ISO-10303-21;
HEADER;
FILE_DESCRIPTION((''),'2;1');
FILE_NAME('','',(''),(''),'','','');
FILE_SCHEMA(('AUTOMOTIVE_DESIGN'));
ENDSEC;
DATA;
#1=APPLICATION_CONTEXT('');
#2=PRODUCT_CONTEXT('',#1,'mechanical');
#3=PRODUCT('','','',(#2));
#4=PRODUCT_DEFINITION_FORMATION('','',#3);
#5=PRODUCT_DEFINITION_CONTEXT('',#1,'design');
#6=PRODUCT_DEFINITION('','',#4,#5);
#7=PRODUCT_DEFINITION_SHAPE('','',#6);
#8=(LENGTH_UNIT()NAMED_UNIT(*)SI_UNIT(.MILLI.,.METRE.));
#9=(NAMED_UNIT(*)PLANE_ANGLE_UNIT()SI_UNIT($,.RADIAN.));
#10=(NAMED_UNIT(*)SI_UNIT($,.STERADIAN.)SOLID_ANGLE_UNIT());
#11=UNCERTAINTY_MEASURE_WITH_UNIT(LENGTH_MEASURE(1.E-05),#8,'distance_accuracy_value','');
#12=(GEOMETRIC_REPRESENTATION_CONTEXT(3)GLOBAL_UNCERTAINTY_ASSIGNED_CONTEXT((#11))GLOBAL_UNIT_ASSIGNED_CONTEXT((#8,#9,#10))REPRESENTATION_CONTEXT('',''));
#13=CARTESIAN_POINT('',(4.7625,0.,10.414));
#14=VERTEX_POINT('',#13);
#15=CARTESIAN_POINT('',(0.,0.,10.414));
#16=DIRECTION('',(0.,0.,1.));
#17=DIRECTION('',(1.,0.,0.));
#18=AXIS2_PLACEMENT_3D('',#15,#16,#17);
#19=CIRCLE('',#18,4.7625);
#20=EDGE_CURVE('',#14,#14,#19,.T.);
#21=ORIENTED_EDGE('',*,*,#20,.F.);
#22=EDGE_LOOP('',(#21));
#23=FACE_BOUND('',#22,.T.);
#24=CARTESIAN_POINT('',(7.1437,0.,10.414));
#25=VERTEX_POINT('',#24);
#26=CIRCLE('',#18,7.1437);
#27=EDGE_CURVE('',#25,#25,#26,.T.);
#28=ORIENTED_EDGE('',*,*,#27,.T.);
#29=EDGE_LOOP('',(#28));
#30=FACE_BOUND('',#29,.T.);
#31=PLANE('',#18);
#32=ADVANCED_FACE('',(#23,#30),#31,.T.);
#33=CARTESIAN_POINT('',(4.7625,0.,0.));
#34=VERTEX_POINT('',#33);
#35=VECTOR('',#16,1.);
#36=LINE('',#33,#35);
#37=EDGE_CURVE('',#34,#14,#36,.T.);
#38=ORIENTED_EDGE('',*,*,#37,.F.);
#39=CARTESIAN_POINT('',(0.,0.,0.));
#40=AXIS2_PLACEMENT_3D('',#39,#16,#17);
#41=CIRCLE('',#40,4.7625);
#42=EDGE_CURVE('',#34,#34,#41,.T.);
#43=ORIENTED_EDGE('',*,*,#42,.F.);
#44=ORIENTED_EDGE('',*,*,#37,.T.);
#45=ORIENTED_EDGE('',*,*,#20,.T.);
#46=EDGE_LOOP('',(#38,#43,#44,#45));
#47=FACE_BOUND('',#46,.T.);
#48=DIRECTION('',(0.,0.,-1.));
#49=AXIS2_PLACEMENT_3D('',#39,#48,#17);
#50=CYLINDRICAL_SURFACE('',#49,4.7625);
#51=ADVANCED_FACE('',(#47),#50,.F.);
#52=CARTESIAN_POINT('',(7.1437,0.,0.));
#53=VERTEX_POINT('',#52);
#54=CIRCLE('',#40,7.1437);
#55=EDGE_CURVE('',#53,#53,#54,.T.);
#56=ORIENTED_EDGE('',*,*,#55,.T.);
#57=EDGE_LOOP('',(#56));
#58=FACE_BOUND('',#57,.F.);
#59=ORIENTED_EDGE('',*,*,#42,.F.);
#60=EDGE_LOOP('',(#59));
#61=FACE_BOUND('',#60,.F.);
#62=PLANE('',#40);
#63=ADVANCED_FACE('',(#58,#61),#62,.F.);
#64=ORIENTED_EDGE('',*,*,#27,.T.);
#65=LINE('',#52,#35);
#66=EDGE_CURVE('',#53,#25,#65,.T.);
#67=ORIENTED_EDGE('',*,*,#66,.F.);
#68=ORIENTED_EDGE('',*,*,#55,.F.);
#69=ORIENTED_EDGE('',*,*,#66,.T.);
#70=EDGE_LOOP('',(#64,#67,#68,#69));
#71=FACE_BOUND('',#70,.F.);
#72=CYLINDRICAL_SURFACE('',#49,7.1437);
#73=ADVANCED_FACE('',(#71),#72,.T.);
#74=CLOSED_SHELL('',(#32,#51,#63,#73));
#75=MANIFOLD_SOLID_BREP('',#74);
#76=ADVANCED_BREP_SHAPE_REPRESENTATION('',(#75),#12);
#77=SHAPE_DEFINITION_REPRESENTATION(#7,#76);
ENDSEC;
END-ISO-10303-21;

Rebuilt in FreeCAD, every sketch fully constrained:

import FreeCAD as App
import Part
import Sketcher
from FreeCAD import Vector
Q = App.Units.Quantity

doc = App.newDocument("Part")
body = doc.addObject("PartDesign::Body", "Body")

# Sketch on XY plane
sketch1 = body.newObject("Sketcher::SketchObject", "Sketch")
sketch1.AttachmentSupport = (doc.getObject("XY_Plane"), [""])
sketch1.MapMode = "FlatFace"
sketch1.addGeometry([
    Part.Circle(Vector(0, 0, 0), Vector(0, 0, 1), 7.1437),
    Part.Circle(Vector(0, 0, 0), Vector(0, 0, 1), 4.7625),
], False)
sketch1.addConstraint([
    Sketcher.Constraint("Coincident", 0, 3, -1, 1),
    Sketcher.Constraint("Coincident", 1, 3, -1, 1),
    Sketcher.Constraint("Diameter", 0, Q("0.5625 in")),
    Sketcher.Constraint("Diameter", 1, Q("0.375 in")),
])
pad1 = body.newObject("PartDesign::Pad", "Pad")
pad1.Profile = sketch1
pad1.Length = Q("0.41 in")

doc.recompute()
